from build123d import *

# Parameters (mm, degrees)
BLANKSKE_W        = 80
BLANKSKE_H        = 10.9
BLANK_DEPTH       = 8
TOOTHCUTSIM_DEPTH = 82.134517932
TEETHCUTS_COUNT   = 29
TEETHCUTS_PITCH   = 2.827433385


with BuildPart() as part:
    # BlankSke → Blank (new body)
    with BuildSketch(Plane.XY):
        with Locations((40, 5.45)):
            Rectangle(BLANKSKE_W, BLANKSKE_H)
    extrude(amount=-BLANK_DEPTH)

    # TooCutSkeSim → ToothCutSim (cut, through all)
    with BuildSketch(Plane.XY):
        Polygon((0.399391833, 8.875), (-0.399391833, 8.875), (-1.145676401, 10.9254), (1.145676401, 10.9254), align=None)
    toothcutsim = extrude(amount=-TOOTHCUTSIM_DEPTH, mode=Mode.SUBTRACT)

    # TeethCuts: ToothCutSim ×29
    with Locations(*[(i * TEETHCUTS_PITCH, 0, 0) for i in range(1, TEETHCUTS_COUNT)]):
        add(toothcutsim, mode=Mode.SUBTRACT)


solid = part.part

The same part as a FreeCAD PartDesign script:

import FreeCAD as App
import Part
import Sketcher

V = App.Vector
Q = App.Units.Quantity


def add_polygon(sketch, points):
    """Adds a closed chain of lines whose ends are joined by coincident constraints."""
    first, n = sketch.GeometryCount, len(points)
    for a, b in zip(points, points[1:] + points[:1]):
        sketch.addGeometry(Part.LineSegment(App.Vector(*a, 0), App.Vector(*b, 0)), False)
    for i in range(n):
        sketch.addConstraint(Sketcher.Constraint("Coincident", first + i, 2, first + (i + 1) % n, 1))

doc = App.newDocument("Part")
body = doc.addObject("PartDesign::Body", "Body")

sketch1 = doc.addObject("Sketcher::SketchObject", "Sketch")
body.addObject(sketch1)
sketch1.AttachmentSupport = (doc.XY_Plane, [""])
sketch1.MapMode = "FlatFace"
add_polygon(sketch1, [(0, 11), (0, 0), (80, 0), (80, 11)])
sketch1.addConstraint(Sketcher.Constraint("Vertical", 0))
sketch1.addConstraint(Sketcher.Constraint("Horizontal", 1))
sketch1.addConstraint(Sketcher.Constraint("Vertical", 2))
sketch1.addConstraint(Sketcher.Constraint("Horizontal", 3))
sketch1.addConstraint(Sketcher.Constraint("Coincident", 0, 2, -1, 1))
sketch1.addConstraint(Sketcher.Constraint("DistanceX", 1, 1, 1, 2, Q("80 mm")))
sketch1.addConstraint(Sketcher.Constraint("DistanceY", 0, 2, 0, 1, Q("10.9 mm")))
pad1 = doc.addObject("PartDesign::Pad", "Pad")
body.addObject(pad1)
pad1.Profile = sketch1
pad1.Length = 8
pad1.Reversed = True

sketch2 = doc.addObject("Sketcher::SketchObject", "Sketch001")
body.addObject(sketch2)
sketch2.AttachmentSupport = (doc.XY_Plane, [""])
sketch2.MapMode = "FlatFace"
add_polygon(sketch2, [(-0.4, 8.9), (0.4, 8.9), (1.1, 10.9), (-1.1, 10.9)])
sketch2.addConstraint(Sketcher.Constraint("Horizontal", 0))
sketch2.addConstraint(Sketcher.Constraint("Horizontal", 2))
sketch2.addConstraint(Sketcher.Constraint("Equal", 1, 3))
sketch2.addConstraint(Sketcher.Constraint("Angle", 1, Q("70 deg")))
sketch2.addConstraint(Sketcher.Constraint("DistanceY", -1, 1, 0, 2, Q("8.875 mm")))
sketch2.addConstraint(Sketcher.Constraint("DistanceY", -1, 1, 1, 2, Q("10.9254 mm")))
sketch2.addConstraint(Sketcher.Constraint("DistanceX", 0, 1, 0, 2, Q("0.798784 mm")))
sketch2.addConstraint(Sketcher.Constraint("DistanceX", -1, 1, 0, 2, Q("0.399392 mm")))
pocket1 = doc.addObject("PartDesign::Pocket", "Pocket")
body.addObject(pocket1)
pocket1.Profile = sketch2
pocket1.Type = "ThroughAll"
doc.recompute()

linearpattern = doc.addObject("PartDesign::LinearPattern", "LinearPattern")
body.addObject(linearpattern)
linearpattern.Originals = [pocket1]
linearpattern.Direction = (doc.X_Axis, [""])
linearpattern.Mode = "offset"
linearpattern.Offset = 2.827433
linearpattern.Occurrences = 29
body.Tip = linearpattern

doc.recompute()
